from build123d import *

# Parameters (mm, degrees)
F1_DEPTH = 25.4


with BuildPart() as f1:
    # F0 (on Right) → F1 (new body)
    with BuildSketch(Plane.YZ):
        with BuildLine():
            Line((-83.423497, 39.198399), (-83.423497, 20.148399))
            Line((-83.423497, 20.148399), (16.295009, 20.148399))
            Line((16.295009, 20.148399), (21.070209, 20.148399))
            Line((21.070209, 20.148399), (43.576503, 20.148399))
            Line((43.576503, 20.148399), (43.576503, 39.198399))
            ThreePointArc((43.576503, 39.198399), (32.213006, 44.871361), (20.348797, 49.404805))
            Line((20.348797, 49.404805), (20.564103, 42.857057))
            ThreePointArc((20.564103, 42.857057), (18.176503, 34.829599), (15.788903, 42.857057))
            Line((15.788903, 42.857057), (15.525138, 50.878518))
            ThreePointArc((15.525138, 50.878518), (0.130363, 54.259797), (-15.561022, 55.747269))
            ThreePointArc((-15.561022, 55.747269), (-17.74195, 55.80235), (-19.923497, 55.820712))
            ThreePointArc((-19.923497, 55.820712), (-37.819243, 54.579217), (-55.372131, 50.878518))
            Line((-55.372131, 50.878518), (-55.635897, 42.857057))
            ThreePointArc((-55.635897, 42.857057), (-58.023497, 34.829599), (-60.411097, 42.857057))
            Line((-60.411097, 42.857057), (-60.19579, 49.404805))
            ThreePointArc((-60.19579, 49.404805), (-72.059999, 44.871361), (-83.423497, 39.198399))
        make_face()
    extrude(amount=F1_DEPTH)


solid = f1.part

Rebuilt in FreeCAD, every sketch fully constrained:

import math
import FreeCAD as App
import Part
import Sketcher
Q = App.Units.Quantity

doc = App.newDocument("Part")
body = doc.addObject("PartDesign::Body", "Body")

sketch1 = body.newObject("Sketcher::SketchObject", "Sketch")
sketch1.AttachmentSupport = (doc.getObject("YZ_Plane"), [""])
sketch1.MapMode = "FlatFace"
sketch1.addGeometry([
    Part.LineSegment(App.Vector(-83.423497, 39.198399, 0), App.Vector(-83.423497, 20.148399, 0)),
    Part.LineSegment(App.Vector(-83.423497, 20.148399, 0), App.Vector(43.576503, 20.148399, 0)),
    Part.LineSegment(App.Vector(43.576503, 20.148399, 0), App.Vector(43.576503, 39.198399, 0)),
    Part.ArcOfCircle(Part.Circle(App.Vector(-19.923499, -73.780729, 0), App.Vector(0, 0, 1), 129.601441), math.radians(60.661804), math.radians(71.896194)),
    Part.LineSegment(App.Vector(20.348797, 49.404805, 0), App.Vector(20.564103, 42.857057, 0)),
    Part.ArcOfCircle(Part.Circle(App.Vector(18.176503, 39.198399, 0), App.Vector(0, 0, 1), 4.3688), math.radians(123.128024), math.radians(416.871976)),
    Part.LineSegment(App.Vector(15.788903, 42.857057, 0), App.Vector(15.525138, 50.878518, 0)),
    Part.ArcOfCircle(Part.Circle(App.Vector(-19.923489, -73.780688, 0), App.Vector(0, 0, 1), 129.6014), math.radians(74.126141), math.radians(88.071023)),
    Part.ArcOfCircle(Part.Circle(App.Vector(-19.92349, -73.779945, 0), App.Vector(0, 0, 1), 129.600657), math.radians(88.071011), math.radians(90.000003)),
    Part.ArcOfCircle(Part.Circle(App.Vector(-19.923494, -73.780749, 0), App.Vector(0, 0, 1), 129.601461), math.radians(90.000001), math.radians(105.873856)),
    Part.LineSegment(App.Vector(-55.372131, 50.878518, 0), App.Vector(-55.635897, 42.857057, 0)),
    Part.ArcOfCircle(Part.Circle(App.Vector(-58.023497, 39.198399, 0), App.Vector(0, 0, 1), 4.3688), math.radians(123.128024), math.radians(416.871976)),
    Part.LineSegment(App.Vector(-60.411097, 42.857057, 0), App.Vector(-60.19579, 49.404805, 0)),
    Part.ArcOfCircle(Part.Circle(App.Vector(-19.923476, -73.780777, 0), App.Vector(0, 0, 1), 129.601492), math.radians(108.103807), math.radians(119.338193)),
], False)
sketch1.addConstraint([
    Sketcher.Constraint("Coincident", 0, 2, 1, 1),
    Sketcher.Constraint("Coincident", 1, 2, 2, 1),
    Sketcher.Constraint("Coincident", 2, 2, 3, 1),
    Sketcher.Constraint("Coincident", 3, 2, 4, 1),
    Sketcher.Constraint("Coincident", 4, 2, 5, 2),
    Sketcher.Constraint("Coincident", 5, 1, 6, 1),
    Sketcher.Constraint("Coincident", 6, 2, 7, 1),
    Sketcher.Constraint("Coincident", 7, 2, 8, 1),
    Sketcher.Constraint("Coincident", 8, 2, 9, 1),
    Sketcher.Constraint("Coincident", 9, 2, 10, 1),
    Sketcher.Constraint("Coincident", 10, 2, 11, 2),
    Sketcher.Constraint("Coincident", 11, 1, 12, 1),
    Sketcher.Constraint("Coincident", 12, 2, 13, 1),
    Sketcher.Constraint("Coincident", 13, 2, 0, 1),
    Sketcher.Constraint("Vertical", 0),
    Sketcher.Constraint("Horizontal", 1),
    Sketcher.Constraint("Vertical", 2),
    Sketcher.Constraint("DistanceX", 1, 1, 1, 2, Q("5 in")),
    Sketcher.Constraint("Radius", 5, Q("0.172 in")),
    Sketcher.Constraint("Radius", 11, Q("0.172 in")),
    Sketcher.Constraint("DistanceX", 11, 3, 5, 3, Q("3 in")),
    Sketcher.Constraint("DistanceX", 0, 2, 11, 3, Q("1 in")),
    Sketcher.Constraint("DistanceY", 0, 2, 0, 1, Q("0.75 in")),
    Sketcher.Constraint("DistanceY", 2, 1, 2, 2, Q("0.75 in")),
    Sketcher.Constraint("DistanceX", 3, 3, 5, 3, Q("1.5000001 in")),
    Sketcher.Constraint("DistanceX", 9, 3, 5, 3, Q("1.4999999 in")),
    Sketcher.Constraint("DistanceX", 8, 2, 5, 3, Q("1.5 in")),
    Sketcher.Constraint("Radius", 7, 129.6014),
    Sketcher.Constraint("DistanceY", 0, 2, 11, 3, Q("0.75 in")),
    Sketcher.Constraint("DistanceY", 0, 2, 5, 3, Q("0.75 in")),
    Sketcher.Constraint("Radius", 3, 129.601441),
    Sketcher.Constraint("Radius", 9, 129.601461),
    Sketcher.Constraint("DistanceX", 5, 3, 4, 2, Q("0.094 in")),
    Sketcher.Constraint("DistanceX", 5, 1, 5, 3, Q("0.094 in")),
    Sketcher.Constraint("DistanceX", 11, 3, 10, 2, Q("0.094 in")),
    Sketcher.Constraint("DistanceX", 11, 1, 11, 3, Q("0.094 in")),
    Sketcher.Constraint("Radius", 8, 129.600657),
    Sketcher.Constraint("Radius", 13, 129.601492),
    Sketcher.Constraint("DistanceX", 3, 3, -1, 1, 19.923499),
    Sketcher.Constraint("DistanceY", -1, 1, 5, 3, 39.198399),
    Sketcher.Constraint("DistanceX", 7, 3, -1, 1, 19.923489),
    Sketcher.Constraint("DistanceY", 7, 3, -1, 1, 73.780688),
    Sketcher.Constraint("DistanceX", 8, 3, -1, 1, 19.92349),
    Sketcher.Constraint("DistanceX", 7, 2, -1, 1, 15.561022),
    Sketcher.Constraint("DistanceX", 9, 2, -1, 1, 55.372131),
    Sketcher.Constraint("DistanceX", 12, 2, -1, 1, 60.19579),
    Sketcher.Constraint("DistanceY", 13, 3, 8, 3, 0.000832),
    Sketcher.Constraint("DistanceY", 4, 2, 3, 2, 6.547748),
    Sketcher.Constraint("DistanceX", 6, 2, 3, 2, 4.823659),
])
pad1 = body.newObject("PartDesign::Pad", "Pad")
pad1.Profile = sketch1
pad1.Length = Q("1 in")

doc.recompute()
